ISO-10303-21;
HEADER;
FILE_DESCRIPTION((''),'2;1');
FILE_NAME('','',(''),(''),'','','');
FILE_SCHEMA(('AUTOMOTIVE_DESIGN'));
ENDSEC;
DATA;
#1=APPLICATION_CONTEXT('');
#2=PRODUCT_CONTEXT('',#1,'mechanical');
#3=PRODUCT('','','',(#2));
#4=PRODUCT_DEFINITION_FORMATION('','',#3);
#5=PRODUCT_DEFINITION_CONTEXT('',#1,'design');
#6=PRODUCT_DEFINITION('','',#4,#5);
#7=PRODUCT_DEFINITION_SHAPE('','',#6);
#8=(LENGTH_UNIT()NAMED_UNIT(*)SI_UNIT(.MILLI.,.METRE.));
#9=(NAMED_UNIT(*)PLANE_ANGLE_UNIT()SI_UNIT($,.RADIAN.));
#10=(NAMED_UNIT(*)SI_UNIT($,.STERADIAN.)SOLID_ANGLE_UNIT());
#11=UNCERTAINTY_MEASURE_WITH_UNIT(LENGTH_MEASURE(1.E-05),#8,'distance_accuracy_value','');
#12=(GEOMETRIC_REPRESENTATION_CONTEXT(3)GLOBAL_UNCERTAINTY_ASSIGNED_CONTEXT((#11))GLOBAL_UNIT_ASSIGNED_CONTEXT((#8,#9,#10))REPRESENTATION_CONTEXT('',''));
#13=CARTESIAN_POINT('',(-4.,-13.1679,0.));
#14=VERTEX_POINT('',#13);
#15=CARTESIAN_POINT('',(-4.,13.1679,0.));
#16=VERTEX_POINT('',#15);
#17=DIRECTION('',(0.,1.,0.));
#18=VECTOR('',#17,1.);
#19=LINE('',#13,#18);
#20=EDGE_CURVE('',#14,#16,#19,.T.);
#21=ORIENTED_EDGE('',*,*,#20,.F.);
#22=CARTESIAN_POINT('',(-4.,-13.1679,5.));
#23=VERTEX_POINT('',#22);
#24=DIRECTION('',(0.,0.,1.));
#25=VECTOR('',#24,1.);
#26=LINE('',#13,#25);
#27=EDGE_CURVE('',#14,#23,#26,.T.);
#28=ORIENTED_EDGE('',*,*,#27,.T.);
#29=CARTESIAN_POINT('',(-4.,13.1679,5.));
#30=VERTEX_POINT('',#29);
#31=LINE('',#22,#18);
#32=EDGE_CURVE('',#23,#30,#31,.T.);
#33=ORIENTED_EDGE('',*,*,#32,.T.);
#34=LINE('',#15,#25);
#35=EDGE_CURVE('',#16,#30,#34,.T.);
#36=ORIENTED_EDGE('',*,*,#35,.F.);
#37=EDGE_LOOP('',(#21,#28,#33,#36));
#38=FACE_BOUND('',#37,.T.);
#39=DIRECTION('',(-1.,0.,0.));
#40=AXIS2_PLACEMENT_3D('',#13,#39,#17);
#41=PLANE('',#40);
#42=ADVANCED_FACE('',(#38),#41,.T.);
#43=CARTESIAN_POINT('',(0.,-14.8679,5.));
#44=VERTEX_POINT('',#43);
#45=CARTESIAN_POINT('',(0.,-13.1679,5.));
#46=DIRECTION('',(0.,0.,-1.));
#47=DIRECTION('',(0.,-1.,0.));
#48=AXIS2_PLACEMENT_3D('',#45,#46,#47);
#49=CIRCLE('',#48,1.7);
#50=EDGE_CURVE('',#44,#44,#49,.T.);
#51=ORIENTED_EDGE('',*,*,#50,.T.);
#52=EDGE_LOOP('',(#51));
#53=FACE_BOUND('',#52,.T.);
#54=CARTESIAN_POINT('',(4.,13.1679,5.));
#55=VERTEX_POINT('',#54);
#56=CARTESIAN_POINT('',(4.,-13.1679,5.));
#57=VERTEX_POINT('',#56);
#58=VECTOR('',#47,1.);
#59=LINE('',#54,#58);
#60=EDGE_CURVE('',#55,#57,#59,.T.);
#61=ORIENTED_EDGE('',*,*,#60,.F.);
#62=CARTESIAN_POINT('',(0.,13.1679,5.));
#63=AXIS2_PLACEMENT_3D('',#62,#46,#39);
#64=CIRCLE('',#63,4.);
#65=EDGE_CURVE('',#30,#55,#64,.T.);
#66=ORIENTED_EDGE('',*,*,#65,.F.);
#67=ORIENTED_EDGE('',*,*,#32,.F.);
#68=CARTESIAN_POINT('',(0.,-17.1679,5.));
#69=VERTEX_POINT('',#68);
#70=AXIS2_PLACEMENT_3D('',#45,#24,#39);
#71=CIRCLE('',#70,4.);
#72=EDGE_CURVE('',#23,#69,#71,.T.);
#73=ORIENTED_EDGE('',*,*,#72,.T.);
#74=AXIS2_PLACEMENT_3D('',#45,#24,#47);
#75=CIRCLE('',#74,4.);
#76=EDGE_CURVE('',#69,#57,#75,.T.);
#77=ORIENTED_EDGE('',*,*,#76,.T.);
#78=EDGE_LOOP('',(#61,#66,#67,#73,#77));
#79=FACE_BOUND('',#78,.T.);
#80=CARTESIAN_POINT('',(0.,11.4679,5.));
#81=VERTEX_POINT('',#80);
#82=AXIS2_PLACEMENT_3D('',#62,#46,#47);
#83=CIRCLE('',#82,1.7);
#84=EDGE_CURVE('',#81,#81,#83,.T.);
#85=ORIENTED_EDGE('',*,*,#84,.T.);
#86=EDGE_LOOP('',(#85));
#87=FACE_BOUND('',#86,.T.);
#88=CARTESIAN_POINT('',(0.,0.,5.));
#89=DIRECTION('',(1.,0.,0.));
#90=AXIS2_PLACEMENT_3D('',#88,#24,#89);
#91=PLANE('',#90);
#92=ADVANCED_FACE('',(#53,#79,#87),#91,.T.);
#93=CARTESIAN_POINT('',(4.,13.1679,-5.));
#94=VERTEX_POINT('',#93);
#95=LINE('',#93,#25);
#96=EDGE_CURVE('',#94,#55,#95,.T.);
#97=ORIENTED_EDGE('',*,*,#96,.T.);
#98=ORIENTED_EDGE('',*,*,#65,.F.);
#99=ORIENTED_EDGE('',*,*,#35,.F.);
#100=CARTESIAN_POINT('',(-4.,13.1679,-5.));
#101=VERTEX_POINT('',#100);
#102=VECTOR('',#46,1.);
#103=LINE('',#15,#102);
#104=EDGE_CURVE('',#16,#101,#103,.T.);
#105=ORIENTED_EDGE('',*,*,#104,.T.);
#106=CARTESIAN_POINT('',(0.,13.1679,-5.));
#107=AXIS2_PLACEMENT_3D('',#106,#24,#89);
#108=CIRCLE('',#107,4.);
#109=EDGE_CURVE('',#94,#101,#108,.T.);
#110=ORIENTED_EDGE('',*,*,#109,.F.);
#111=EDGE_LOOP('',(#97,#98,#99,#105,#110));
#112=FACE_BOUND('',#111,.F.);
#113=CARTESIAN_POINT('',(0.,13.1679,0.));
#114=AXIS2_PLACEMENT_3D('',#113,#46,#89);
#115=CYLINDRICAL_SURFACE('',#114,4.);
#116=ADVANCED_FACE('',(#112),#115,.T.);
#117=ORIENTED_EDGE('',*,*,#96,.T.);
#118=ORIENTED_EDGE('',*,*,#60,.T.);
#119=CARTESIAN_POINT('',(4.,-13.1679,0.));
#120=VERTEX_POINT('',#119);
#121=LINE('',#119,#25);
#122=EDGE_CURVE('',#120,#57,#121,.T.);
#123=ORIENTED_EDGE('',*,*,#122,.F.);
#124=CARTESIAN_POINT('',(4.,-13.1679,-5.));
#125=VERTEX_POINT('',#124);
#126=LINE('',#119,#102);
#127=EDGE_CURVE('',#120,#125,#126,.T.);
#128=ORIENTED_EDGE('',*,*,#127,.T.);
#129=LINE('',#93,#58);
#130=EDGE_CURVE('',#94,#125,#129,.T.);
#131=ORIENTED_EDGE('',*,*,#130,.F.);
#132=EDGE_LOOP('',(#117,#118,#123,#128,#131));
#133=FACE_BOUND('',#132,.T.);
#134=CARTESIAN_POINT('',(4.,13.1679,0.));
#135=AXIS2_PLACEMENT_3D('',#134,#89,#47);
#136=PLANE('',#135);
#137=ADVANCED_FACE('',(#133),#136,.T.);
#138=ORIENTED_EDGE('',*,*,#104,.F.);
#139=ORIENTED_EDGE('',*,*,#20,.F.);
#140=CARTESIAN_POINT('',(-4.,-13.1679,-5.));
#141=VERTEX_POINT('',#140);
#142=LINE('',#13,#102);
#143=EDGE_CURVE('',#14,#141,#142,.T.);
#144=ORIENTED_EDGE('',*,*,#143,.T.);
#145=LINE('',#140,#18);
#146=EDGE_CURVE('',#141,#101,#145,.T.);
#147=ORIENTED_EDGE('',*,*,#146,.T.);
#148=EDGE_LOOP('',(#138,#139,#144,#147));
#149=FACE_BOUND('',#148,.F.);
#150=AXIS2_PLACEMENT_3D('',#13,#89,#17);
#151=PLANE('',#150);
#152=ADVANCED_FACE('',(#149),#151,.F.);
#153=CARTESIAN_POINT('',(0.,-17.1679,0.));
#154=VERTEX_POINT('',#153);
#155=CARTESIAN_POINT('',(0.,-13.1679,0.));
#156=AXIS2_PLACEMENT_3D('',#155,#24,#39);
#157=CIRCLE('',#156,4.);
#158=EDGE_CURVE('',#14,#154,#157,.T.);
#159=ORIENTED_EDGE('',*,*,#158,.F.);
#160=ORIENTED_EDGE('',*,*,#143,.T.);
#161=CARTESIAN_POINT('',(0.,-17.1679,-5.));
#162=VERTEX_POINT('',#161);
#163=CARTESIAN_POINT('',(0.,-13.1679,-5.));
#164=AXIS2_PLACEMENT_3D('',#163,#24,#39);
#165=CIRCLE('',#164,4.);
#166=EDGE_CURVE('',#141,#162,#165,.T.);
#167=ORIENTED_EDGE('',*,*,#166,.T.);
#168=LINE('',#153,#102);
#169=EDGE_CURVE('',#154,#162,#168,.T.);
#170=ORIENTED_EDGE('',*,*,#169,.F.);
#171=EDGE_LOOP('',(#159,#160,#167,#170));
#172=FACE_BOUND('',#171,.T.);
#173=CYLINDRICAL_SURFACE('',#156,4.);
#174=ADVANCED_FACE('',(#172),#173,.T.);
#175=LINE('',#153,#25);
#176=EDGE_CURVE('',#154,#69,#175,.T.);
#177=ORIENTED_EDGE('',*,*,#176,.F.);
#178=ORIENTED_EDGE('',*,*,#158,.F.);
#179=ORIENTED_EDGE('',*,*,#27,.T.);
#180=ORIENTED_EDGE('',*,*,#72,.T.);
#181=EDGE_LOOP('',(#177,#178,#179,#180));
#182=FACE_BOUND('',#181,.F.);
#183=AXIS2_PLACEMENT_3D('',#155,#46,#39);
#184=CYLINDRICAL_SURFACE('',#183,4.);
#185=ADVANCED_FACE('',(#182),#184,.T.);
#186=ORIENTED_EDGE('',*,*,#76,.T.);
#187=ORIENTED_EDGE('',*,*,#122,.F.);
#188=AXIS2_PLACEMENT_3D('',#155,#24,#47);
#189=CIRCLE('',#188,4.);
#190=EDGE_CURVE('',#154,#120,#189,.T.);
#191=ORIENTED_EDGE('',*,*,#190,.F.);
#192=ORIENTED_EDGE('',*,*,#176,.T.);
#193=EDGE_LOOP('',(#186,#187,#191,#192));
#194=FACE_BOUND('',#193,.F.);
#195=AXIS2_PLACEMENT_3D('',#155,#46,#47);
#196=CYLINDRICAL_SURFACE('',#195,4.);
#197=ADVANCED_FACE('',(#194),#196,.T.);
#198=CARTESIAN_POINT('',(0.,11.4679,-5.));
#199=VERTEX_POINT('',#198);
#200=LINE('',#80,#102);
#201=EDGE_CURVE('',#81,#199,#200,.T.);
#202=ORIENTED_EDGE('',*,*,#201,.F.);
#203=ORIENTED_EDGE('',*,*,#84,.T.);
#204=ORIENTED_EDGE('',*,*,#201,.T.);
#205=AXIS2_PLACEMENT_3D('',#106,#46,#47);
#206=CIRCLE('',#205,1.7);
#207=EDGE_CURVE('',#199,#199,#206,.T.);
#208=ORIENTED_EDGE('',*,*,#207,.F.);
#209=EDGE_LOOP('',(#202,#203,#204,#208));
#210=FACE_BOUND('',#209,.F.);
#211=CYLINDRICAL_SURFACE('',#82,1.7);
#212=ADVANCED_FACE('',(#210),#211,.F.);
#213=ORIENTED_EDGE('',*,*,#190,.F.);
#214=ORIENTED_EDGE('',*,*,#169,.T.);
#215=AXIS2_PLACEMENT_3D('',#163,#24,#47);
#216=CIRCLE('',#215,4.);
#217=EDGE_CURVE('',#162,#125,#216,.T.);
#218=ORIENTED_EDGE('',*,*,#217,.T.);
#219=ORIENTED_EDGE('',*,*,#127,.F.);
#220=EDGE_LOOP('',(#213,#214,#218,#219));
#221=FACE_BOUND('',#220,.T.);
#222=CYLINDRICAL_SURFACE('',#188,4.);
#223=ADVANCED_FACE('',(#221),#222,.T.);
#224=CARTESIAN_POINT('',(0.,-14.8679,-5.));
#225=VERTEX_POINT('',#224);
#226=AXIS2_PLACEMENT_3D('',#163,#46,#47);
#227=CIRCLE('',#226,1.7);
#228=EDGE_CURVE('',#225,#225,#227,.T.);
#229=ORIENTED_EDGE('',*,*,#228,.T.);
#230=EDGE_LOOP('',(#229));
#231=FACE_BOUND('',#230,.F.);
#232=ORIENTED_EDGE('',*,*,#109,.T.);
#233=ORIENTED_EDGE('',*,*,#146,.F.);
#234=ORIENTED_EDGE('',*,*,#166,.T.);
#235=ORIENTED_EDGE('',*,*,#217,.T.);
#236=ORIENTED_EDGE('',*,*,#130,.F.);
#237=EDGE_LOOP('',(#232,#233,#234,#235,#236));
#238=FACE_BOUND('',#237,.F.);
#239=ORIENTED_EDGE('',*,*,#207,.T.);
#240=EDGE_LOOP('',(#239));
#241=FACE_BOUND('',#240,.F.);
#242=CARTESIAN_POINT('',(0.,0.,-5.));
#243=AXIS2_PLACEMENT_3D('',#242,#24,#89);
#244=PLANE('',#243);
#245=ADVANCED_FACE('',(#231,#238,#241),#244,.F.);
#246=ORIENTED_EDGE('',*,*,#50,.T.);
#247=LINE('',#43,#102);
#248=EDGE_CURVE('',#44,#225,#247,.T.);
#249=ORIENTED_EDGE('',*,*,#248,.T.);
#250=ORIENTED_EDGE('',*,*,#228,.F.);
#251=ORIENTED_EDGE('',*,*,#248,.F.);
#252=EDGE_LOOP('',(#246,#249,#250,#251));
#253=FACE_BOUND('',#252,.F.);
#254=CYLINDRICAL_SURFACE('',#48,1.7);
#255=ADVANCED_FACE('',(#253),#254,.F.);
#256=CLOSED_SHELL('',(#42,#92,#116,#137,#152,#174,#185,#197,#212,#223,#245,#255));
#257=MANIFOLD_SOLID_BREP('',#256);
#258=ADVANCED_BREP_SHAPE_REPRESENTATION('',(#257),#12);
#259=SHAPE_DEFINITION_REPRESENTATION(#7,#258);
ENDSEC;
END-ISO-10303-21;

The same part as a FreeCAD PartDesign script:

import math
import FreeCAD as App
import Part
import Sketcher
Q = App.Units.Quantity

doc = App.newDocument("Part")
body = doc.addObject("PartDesign::Body", "Body")

# Sketch on XY plane
sketch1 = body.newObject("Sketcher::SketchObject", "Sketch")
sketch1.AttachmentSupport = (doc.getObject("XY_Plane"), [""])
sketch1.MapMode = "FlatFace"
sketch1.addGeometry([
    Part.LineSegment(App.Vector(4, -13.2, 0), App.Vector(4, 13.2, 0)),
    Part.ArcOfCircle(Part.Circle(App.Vector(0, 13.2, 0), App.Vector(0, 0, 1), 4), math.radians(0), math.radians(180)),
    Part.LineSegment(App.Vector(-4, 13.2, 0), App.Vector(-4, -13.2, 0)),
    Part.ArcOfCircle(Part.Circle(App.Vector(0, -13.2, 0), App.Vector(0, 0, 1), 4), math.radians(180), math.radians(360)),
], False)
sketch1.addConstraint([
    Sketcher.Constraint("Tangent", 0, 2, 1, 1),
    Sketcher.Constraint("Tangent", 1, 2, 2, 1),
    Sketcher.Constraint("Tangent", 2, 2, 3, 1),
    Sketcher.Constraint("Tangent", 3, 2, 0, 1),
    Sketcher.Constraint("Vertical", 0),
    Sketcher.Constraint("Vertical", 2),
    Sketcher.Constraint("Symmetric", 1, 3, 3, 3, -1, 1),
    Sketcher.Constraint("Radius", 1, Q("4 mm")),
    Sketcher.Constraint("DistanceY", 0, 1, 0, 2, Q("26.3358 mm")),
])
pad1 = body.newObject("PartDesign::Pad", "Pad")
pad1.Profile = sketch1
pad1.Length = 10
pad1.Midplane = True

# Sketch on XY plane
sketch2 = body.newObject("Sketcher::SketchObject", "Sketch001")
sketch2.AttachmentSupport = (doc.getObject("XY_Plane"), [""])
sketch2.MapMode = "FlatFace"
sketch2.AttachmentOffset = App.Placement(App.Vector(0, 0, 5), App.Rotation())
sketch2.addGeometry([
    Part.Circle(App.Vector(0, 13.2, 0), App.Vector(0, 0, 1), 1.7),
    Part.Circle(App.Vector(0, -13.2, 0), App.Vector(0, 0, 1), 1.7),
], False)
sketch2.addConstraint([
    Sketcher.Constraint("Equal", 0, 1),
    Sketcher.Constraint("Symmetric", 0, 3, 1, 3, -1, 1),
    Sketcher.Constraint("PointOnObject", 0, 3, -2),
    Sketcher.Constraint("Diameter", 0, Q("3.4 mm")),
    Sketcher.Constraint("DistanceY", -1, 1, 0, 3, Q("13.168 mm")),
])
doc.recompute()
hole = body.newObject("PartDesign::Hole", "Hole")
hole.Profile = sketch2
hole.ThreadType = "None"
hole.Diameter = 3.4
hole.DepthType = "ThroughAll"

doc.recompute()
